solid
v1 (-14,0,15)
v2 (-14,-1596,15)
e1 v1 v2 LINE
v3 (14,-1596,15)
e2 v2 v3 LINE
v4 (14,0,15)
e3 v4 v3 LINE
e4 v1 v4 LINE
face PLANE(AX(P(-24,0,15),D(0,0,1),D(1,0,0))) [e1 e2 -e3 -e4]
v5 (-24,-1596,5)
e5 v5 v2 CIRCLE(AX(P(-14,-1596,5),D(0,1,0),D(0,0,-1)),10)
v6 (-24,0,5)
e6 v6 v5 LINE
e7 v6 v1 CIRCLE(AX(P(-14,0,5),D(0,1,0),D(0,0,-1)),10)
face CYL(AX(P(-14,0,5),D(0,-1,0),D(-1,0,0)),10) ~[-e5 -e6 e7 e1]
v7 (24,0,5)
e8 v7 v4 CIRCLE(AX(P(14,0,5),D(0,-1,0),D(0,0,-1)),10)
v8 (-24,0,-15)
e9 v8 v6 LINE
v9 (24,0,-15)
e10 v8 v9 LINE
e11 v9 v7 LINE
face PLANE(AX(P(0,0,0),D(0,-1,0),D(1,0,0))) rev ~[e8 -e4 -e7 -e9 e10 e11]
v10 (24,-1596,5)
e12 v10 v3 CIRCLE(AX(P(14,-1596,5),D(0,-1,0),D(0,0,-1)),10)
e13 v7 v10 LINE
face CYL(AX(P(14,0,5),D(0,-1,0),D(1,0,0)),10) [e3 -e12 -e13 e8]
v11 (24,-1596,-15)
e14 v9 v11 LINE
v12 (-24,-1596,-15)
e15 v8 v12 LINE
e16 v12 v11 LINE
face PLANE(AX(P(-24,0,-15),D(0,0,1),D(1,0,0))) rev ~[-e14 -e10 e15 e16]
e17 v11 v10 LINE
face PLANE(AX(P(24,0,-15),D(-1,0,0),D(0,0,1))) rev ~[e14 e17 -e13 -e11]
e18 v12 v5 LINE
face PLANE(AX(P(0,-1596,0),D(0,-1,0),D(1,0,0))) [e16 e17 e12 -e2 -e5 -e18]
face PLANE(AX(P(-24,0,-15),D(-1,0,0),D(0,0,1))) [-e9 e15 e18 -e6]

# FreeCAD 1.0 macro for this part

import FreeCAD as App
import Part
import Sketcher


def edges_at(feature, points):
    """Names of the edges that pass closest to the given points."""
    edges = feature.Shape.Edges
    near = lambda p: min(range(len(edges)), key=lambda i: edges[i].distToShape(Part.Vertex(*p))[0])
    return sorted({f"Edge{near(p) + 1}" for p in points})

doc = App.newDocument("Part")
body = doc.addObject("PartDesign::Body", "Body")

sketch1 = body.newObject("Sketcher::SketchObject", "Sketch")
sketch1.AttachmentSupport = (doc.getObject("XZ_Plane"), [""])
sketch1.MapMode = "FlatFace"
sketch1.addGeometry([
    Part.LineSegment(App.Vector(-24, 15, 0), App.Vector(-24, -15, 0)),
    Part.LineSegment(App.Vector(-24, -15, 0), App.Vector(24, -15, 0)),
    Part.LineSegment(App.Vector(24, -15, 0), App.Vector(24, 15, 0)),
    Part.LineSegment(App.Vector(24, 15, 0), App.Vector(-24, 15, 0)),
], False)
sketch1.addConstraint([
    Sketcher.Constraint("Coincident", 0, 2, 1, 1),
    Sketcher.Constraint("Coincident", 1, 2, 2, 1),
    Sketcher.Constraint("Coincident", 2, 2, 3, 1),
    Sketcher.Constraint("Coincident", 3, 2, 0, 1),
    Sketcher.Constraint("Vertical", 0),
    Sketcher.Constraint("Horizontal", 1),
    Sketcher.Constraint("Vertical", 2),
    Sketcher.Constraint("Horizontal", 3),
    Sketcher.Constraint("Symmetric", 0, 2, 2, 2, -1, 1),
    Sketcher.Constraint("DistanceX", 1, 1, 1, 2, 48.0),
    Sketcher.Constraint("DistanceY", 0, 2, 0, 1, 30.0),
])
pad1 = body.newObject("PartDesign::Pad", "Pad")
pad1.Profile = sketch1
pad1.Length = 1596
doc.recompute()

fillet = body.newObject("PartDesign::Fillet", "Fillet")
fillet.Base = (pad1, edges_at(pad1, [(-24, -798, 15), (24, -798, 15)]))
fillet.Radius = 10

doc.recompute()
